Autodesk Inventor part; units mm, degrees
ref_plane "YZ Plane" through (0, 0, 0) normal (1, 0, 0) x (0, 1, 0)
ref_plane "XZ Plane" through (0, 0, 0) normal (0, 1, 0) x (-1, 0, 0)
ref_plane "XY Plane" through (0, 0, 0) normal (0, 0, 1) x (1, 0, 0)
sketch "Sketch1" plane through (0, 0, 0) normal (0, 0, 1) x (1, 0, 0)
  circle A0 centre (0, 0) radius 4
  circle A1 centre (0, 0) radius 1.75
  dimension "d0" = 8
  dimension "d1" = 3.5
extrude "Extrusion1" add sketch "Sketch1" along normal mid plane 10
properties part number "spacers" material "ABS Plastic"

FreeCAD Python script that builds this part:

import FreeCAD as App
import Part
import Sketcher

doc = App.newDocument("Part")
params = doc.addObject("Spreadsheet::Sheet", "Params")
for row, (alias, value) in enumerate([
    ("sketch1_diameter", "8 mm"),
    ("sketch1_diameter2", "3.5 mm"),
    ("pad1_length", "10 mm"),
], start=1):
    params.set(f"A{row}", alias)
    params.set(f"B{row}", "=" + value)
    params.setAlias(f"B{row}", alias)

body = doc.addObject("PartDesign::Body", "Body")

# Sketch on XY plane
sketch1 = doc.addObject("Sketcher::SketchObject", "Sketch")
body.addObject(sketch1)
sketch1.AttachmentSupport = (doc.XY_Plane, [""])
sketch1.MapMode = "FlatFace"
sketch1.addGeometry(Part.Circle(App.Vector(0, 0, 0), App.Vector(0, 0, 1), 4), False)
sketch1.addGeometry(Part.Circle(App.Vector(0, 0, 0), App.Vector(0, 0, 1), 1.8), False)
sketch1.addConstraint(Sketcher.Constraint("Coincident", 0, 3, -1, 1))
sketch1.addConstraint(Sketcher.Constraint("Coincident", 1, 3, -1, 1))
sketch1.addConstraint(Sketcher.Constraint("Diameter", 0, 8.0))
sketch1.addConstraint(Sketcher.Constraint("Diameter", 1, 3.5))
sketch1.setExpression("Constraints[2]", "Params.sketch1_diameter")
sketch1.setExpression("Constraints[3]", "Params.sketch1_diameter2")
pad1 = doc.addObject("PartDesign::Pad", "Pad")
body.addObject(pad1)
pad1.Profile = sketch1
pad1.setExpression("Length", "Params.pad1_length")
pad1.Midplane = True

doc.recompute()
